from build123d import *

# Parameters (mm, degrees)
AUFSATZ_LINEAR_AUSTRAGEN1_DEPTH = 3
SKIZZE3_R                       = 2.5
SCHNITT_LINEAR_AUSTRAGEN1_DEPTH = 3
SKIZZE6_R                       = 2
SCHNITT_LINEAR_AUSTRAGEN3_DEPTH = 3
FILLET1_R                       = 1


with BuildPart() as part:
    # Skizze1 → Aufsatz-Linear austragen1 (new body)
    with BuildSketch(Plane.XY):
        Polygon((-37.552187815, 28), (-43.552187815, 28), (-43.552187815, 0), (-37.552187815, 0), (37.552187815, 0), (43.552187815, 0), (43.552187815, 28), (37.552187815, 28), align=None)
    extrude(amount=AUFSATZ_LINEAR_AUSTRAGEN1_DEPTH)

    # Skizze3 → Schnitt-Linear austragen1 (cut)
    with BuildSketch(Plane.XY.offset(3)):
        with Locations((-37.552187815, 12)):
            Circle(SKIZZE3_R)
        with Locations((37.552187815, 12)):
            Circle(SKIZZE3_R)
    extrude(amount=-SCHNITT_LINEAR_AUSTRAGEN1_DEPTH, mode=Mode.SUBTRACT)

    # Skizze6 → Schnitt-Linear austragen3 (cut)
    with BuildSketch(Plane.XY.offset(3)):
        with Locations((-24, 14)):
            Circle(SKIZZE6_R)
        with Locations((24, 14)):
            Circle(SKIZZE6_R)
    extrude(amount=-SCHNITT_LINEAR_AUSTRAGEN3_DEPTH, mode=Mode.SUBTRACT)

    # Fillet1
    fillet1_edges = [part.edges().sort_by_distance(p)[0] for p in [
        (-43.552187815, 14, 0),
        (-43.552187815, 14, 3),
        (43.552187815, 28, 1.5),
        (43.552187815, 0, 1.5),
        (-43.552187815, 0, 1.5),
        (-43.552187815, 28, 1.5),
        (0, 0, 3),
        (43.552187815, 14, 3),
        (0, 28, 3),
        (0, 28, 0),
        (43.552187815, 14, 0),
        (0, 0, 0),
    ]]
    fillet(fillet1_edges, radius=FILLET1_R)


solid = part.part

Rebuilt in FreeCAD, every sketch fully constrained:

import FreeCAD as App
import Part
import Sketcher

V = App.Vector
Q = App.Units.Quantity


def edges_at(feature, points):
    """Names of the edges that pass closest to the given points."""
    edges = feature.Shape.Edges
    near = lambda p: min(range(len(edges)), key=lambda i: edges[i].distToShape(Part.Vertex(*p))[0])
    return sorted({f"Edge{near(p) + 1}" for p in points})


def add_polygon(sketch, points):
    """Adds a closed chain of lines whose ends are joined by coincident constraints."""
    first, n = sketch.GeometryCount, len(points)
    for a, b in zip(points, points[1:] + points[:1]):
        sketch.addGeometry(Part.LineSegment(App.Vector(*a, 0), App.Vector(*b, 0)), False)
    for i in range(n):
        sketch.addConstraint(Sketcher.Constraint("Coincident", first + i, 2, first + (i + 1) % n, 1))

doc = App.newDocument("Part")
params = doc.addObject("Spreadsheet::Sheet", "Params")
for row, (alias, value) in enumerate([
    ("sketch1_height", "28 mm"),
    ("pad1_length", "3 mm"),
    ("sketch2_diameter", "5 mm"),
    ("pocket1_length", "3 mm"),
    ("sketch3_diameter", "4 mm"),
    ("pocket2_length", "3 mm"),
    ("fillet_radius", "1 mm"),
], start=1):
    params.set(f"A{row}", alias)
    params.set(f"B{row}", "=" + value)
    params.setAlias(f"B{row}", alias)

body = doc.addObject("PartDesign::Body", "Body")

# Sketch on XY plane
sketch1 = body.newObject("Sketcher::SketchObject", "Sketch")
sketch1.AttachmentSupport = (doc.getObject("XY_Plane"), [""])
sketch1.MapMode = "FlatFace"
add_polygon(sketch1, [(-43.552188, 28), (-43.552188, 0), (43.552188, 0), (43.552188, 28)])  # lines 0-3
sketch1.addConstraint(Sketcher.Constraint("Vertical", 0))
sketch1.addConstraint(Sketcher.Constraint("Horizontal", 1))
sketch1.addConstraint(Sketcher.Constraint("Vertical", 2))
sketch1.addConstraint(Sketcher.Constraint("Horizontal", 3))
sketch1.addConstraint(Sketcher.Constraint("Symmetric", 0, 2, 1, 2, -1, 1))
sketch1.addConstraint(Sketcher.Constraint("DistanceY", 0, 2, 0, 1, Q("28 mm")))
sketch1.addConstraint(Sketcher.Constraint("DistanceX", 1, 1, 1, 2, Q("87.104376 mm")))
sketch1.setExpression("Constraints[9]", "Params.sketch1_height")
pad1 = body.newObject("PartDesign::Pad", "Pad")
pad1.Profile = sketch1
pad1.setExpression("Length", "Params.pad1_length")

# Sketch on XY plane
sketch2 = body.newObject("Sketcher::SketchObject", "Sketch001")
sketch2.AttachmentSupport = (doc.getObject("XY_Plane"), [""])
sketch2.MapMode = "FlatFace"
sketch2.AttachmentOffset = App.Placement(V(0, 0, 3), App.Rotation())
sketch2.addGeometry(Part.Circle(V(-37.552188, 12, 0), V(0, 0, 1), 2.5), False)
sketch2.addGeometry(Part.Circle(V(37.552188, 12, 0), V(0, 0, 1), 2.5), False)
sketch2.addConstraint(Sketcher.Constraint("Equal", 0, 1))
sketch2.addConstraint(Sketcher.Constraint("Symmetric", 0, 3, 1, 3, -2))
sketch2.addConstraint(Sketcher.Constraint("Diameter", 0, Q("5 mm")))
sketch2.addConstraint(Sketcher.Constraint("DistanceY", -1, 1, 0, 3, Q("12 mm")))
sketch2.addConstraint(Sketcher.Constraint("DistanceX", 0, 3, -1, 1, Q("37.552188 mm")))
sketch2.setExpression("Constraints[2]", "Params.sketch2_diameter")
pocket1 = body.newObject("PartDesign::Pocket", "Pocket")
pocket1.Profile = sketch2
pocket1.setExpression("Length", "Params.pocket1_length")

# Sketch on XY plane
sketch3 = body.newObject("Sketcher::SketchObject", "Sketch002")
sketch3.AttachmentSupport = (doc.getObject("XY_Plane"), [""])
sketch3.MapMode = "FlatFace"
sketch3.AttachmentOffset = App.Placement(V(0, 0, 3), App.Rotation())
sketch3.addGeometry(Part.Circle(V(-24, 14, 0), V(0, 0, 1), 2), False)
sketch3.addGeometry(Part.Circle(V(24, 14, 0), V(0, 0, 1), 2), False)
sketch3.addConstraint(Sketcher.Constraint("Equal", 0, 1))
sketch3.addConstraint(Sketcher.Constraint("Symmetric", 0, 3, 1, 3, -2))
sketch3.addConstraint(Sketcher.Constraint("Diameter", 0, Q("4 mm")))
sketch3.addConstraint(Sketcher.Constraint("DistanceX", 0, 3, -1, 1, Q("24 mm")))
sketch3.addConstraint(Sketcher.Constraint("DistanceY", -1, 1, 0, 3, Q("14 mm")))
sketch3.setExpression("Constraints[2]", "Params.sketch3_diameter")
pocket2 = body.newObject("PartDesign::Pocket", "Pocket001")
pocket2.Profile = sketch3
pocket2.setExpression("Length", "Params.pocket2_length")
doc.recompute()

fillet = body.newObject("PartDesign::Fillet", "Fillet")
fillet.Base = (pocket2, edges_at(pocket2, [
    (-43.552, 14, 0),
    (-43.552, 14, 3),
    (43.552, 28, 1.5),
    (43.552, 0, 1.5),
    (-43.552, 0, 1.5),
    (-43.552, 28, 1.5),
    (0, 0, 3),
    (43.552, 14, 3),
    (0, 28, 3),
    (0, 28, 0),
    (43.552, 14, 0),
    (0, 0, 0),
]))
fillet.setExpression("Radius", "Params.fillet_radius")

doc.recompute()
